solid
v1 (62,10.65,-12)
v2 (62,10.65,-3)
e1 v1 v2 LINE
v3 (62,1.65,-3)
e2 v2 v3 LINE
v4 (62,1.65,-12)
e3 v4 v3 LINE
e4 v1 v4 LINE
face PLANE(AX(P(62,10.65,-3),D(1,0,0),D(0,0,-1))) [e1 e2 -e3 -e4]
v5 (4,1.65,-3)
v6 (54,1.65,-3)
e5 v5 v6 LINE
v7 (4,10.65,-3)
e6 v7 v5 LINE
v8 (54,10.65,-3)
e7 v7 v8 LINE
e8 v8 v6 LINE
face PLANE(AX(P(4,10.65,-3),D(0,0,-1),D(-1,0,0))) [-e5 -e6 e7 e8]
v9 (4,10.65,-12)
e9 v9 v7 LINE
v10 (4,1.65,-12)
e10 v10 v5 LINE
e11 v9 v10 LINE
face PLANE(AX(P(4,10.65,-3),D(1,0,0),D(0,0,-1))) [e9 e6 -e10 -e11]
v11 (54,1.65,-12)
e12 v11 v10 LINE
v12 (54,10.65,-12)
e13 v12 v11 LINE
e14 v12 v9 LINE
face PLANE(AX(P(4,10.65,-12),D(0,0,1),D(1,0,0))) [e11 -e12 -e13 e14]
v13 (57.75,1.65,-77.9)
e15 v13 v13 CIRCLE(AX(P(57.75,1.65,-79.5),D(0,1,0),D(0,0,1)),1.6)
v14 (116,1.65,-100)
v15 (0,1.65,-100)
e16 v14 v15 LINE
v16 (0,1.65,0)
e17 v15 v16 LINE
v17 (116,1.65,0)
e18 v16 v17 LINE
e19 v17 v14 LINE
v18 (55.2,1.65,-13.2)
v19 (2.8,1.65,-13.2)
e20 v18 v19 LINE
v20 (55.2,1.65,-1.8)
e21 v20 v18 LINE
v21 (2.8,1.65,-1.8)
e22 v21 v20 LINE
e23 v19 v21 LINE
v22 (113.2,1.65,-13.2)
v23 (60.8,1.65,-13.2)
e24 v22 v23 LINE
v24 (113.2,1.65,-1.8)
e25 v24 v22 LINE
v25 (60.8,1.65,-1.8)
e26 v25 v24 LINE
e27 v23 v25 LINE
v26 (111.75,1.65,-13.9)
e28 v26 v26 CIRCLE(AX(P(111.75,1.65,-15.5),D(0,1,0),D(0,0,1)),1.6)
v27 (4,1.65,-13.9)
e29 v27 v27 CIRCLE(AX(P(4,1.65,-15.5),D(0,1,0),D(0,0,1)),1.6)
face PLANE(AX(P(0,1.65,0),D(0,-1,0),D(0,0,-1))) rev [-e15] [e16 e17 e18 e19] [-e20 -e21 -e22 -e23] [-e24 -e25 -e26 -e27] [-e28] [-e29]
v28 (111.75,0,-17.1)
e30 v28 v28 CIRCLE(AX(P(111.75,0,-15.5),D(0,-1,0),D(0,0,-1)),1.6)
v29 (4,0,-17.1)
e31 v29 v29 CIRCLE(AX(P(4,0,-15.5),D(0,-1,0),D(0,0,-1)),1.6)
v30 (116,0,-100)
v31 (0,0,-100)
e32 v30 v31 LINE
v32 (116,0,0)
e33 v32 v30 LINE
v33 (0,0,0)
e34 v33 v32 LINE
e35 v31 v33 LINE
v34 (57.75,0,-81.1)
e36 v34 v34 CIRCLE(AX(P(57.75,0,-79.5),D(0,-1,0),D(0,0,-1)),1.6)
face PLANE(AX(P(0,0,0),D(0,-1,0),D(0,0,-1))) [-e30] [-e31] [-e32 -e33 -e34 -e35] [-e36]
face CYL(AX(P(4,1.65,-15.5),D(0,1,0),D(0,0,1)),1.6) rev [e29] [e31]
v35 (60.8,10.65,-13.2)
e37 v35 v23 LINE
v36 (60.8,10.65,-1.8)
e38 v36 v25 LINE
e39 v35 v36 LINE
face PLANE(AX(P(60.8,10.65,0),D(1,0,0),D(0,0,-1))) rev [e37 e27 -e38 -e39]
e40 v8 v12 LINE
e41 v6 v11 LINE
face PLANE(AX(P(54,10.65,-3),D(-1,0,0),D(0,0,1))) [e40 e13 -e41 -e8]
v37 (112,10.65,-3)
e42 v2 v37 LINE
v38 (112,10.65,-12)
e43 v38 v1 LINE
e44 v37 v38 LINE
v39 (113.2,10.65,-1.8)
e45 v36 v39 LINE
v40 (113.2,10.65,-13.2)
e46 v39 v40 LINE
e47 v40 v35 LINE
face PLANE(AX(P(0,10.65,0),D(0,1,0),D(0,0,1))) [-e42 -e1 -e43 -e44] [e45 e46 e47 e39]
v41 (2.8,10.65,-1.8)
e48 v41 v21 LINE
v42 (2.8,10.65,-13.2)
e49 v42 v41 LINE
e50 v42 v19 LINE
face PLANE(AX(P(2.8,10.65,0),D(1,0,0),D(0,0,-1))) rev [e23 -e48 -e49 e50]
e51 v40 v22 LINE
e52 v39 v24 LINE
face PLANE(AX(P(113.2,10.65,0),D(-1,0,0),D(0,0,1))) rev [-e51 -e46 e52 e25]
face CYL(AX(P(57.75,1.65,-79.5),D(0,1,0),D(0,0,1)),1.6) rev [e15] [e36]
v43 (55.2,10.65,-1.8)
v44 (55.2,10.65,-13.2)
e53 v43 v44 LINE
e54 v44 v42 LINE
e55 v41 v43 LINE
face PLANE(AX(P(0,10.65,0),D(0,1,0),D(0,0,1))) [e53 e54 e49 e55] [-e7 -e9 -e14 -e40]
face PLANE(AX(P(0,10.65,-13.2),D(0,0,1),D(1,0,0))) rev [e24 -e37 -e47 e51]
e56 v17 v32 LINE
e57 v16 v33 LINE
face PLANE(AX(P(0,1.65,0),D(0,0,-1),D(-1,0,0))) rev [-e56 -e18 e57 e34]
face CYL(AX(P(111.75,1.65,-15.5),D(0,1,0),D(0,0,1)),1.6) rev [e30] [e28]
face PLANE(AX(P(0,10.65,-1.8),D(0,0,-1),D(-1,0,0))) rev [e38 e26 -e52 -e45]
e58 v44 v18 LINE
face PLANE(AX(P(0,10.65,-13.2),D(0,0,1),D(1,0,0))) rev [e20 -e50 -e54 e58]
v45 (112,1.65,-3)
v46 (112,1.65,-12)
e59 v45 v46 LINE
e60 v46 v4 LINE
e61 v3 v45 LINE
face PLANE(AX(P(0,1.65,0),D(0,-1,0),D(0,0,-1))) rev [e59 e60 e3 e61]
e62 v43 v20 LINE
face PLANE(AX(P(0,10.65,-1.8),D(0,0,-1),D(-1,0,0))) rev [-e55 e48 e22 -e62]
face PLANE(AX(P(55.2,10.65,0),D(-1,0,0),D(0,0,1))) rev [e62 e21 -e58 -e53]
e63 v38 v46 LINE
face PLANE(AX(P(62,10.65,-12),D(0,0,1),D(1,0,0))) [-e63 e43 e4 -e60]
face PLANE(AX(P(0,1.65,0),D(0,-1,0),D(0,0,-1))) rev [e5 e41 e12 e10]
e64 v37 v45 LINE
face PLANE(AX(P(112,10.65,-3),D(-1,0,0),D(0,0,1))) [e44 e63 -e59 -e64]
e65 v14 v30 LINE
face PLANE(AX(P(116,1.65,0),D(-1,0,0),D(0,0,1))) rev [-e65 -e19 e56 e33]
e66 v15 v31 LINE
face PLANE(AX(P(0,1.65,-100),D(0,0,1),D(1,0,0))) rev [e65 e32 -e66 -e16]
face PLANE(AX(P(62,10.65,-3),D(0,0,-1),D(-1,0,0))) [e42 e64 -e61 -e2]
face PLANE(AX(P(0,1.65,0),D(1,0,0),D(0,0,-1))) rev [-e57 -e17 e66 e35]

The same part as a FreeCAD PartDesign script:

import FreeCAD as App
import Part
import Sketcher
from FreeCAD import Vector
Q = App.Units.Quantity


def add_polygon(sketch, points):
    """Adds a closed chain of lines whose ends are joined by coincident constraints."""
    first, n = sketch.GeometryCount, len(points)
    for a, b in zip(points, points[1:] + points[:1]):
        sketch.addGeometry(Part.LineSegment(App.Vector(*a, 0), App.Vector(*b, 0)), False)
    for i in range(n):
        sketch.addConstraint(Sketcher.Constraint("Coincident", first + i, 2, first + (i + 1) % n, 1))

doc = App.newDocument("Part")
body = doc.addObject("PartDesign::Body", "Body")

# Sketch on XZ plane
sketch1 = doc.addObject("Sketcher::SketchObject", "Sketch")
body.addObject(sketch1)
sketch1.AttachmentSupport = (doc.XZ_Plane, [""])
sketch1.MapMode = "FlatFace"
add_polygon(sketch1, [(0, -100), (0, 0), (116, 0), (116, -100)])  # lines 0-3
sketch1.addConstraint([
    Sketcher.Constraint("Vertical", 0),
    Sketcher.Constraint("Horizontal", 1),
    Sketcher.Constraint("Vertical", 2),
    Sketcher.Constraint("Horizontal", 3),
    Sketcher.Constraint("Coincident", 0, 2, -1, 1),
    Sketcher.Constraint("DistanceX", 1, 1, 1, 2, Q("116 mm")),
    Sketcher.Constraint("DistanceY", 0, 1, 0, 2, Q("100 mm")),
])
pad1 = doc.addObject("PartDesign::Pad", "Pad")
body.addObject(pad1)
pad1.Profile = sketch1
pad1.Length = 1.65
pad1.Reversed = True

# Sketch on XZ plane
sketch2 = doc.addObject("Sketcher::SketchObject", "Sketch001")
body.addObject(sketch2)
sketch2.AttachmentSupport = (doc.XZ_Plane, [""])
sketch2.MapMode = "FlatFace"
sketch2.AttachmentOffset = App.Placement(Vector(0, 0, -1.65), App.Rotation())
sketch2.addGeometry([
    Part.Circle(Vector(4, -15.5, 0), Vector(0, 0, 1), 1.6),
    Part.Circle(Vector(111.8, -15.5, 0), Vector(0, 0, 1), 1.6),
    Part.Circle(Vector(57.8, -79.5, 0), Vector(0, 0, 1), 1.6),
], False)
sketch2.addConstraint([
    Sketcher.Constraint("Equal", 0, 1),
    Sketcher.Constraint("Equal", 1, 2),
    Sketcher.Constraint("Horizontal", 0, 3, 1, 3),
    Sketcher.Constraint("Diameter", 0, Q("3.2 mm")),
    Sketcher.Constraint("DistanceX", -1, 1, 0, 3, Q("4 mm")),
    Sketcher.Constraint("DistanceY", 2, 3, 0, 3, Q("64 mm")),
    Sketcher.Constraint("DistanceX", 2, 3, 1, 3, Q("54 mm")),
    Sketcher.Constraint("DistanceY", 0, 3, -1, 1, Q("15.5 mm")),
    Sketcher.Constraint("DistanceX", -1, 1, 1, 3, Q("111.75 mm")),
])
doc.recompute()
hole = doc.addObject("PartDesign::Hole", "Hole")
body.addObject(hole)
hole.Profile = sketch2
hole.ThreadType = "None"
hole.Diameter = 3.2
hole.DepthType = "Dimension"
hole.Depth = 20
hole.DrillPoint = "Angled"
hole.DrillPointAngle = 118
hole.Reversed = True

# Sketch on XZ plane
sketch3 = doc.addObject("Sketcher::SketchObject", "Sketch002")
body.addObject(sketch3)
sketch3.AttachmentSupport = (doc.XZ_Plane, [""])
sketch3.MapMode = "FlatFace"
sketch3.AttachmentOffset = App.Placement(Vector(0, 0, -1.65), App.Rotation())
add_polygon(sketch3, [(3, -13), (3, -2), (55, -2), (55, -13)])  # lines 0-3
add_polygon(sketch3, [(54, -3), (4, -3), (4, -12), (54, -12)])  # lines 4-7
add_polygon(sketch3, [(61, -13), (61, -2), (113, -2), (113, -13)])  # lines 8-11
add_polygon(sketch3, [(112, -3), (62, -3), (62, -12), (112, -12)])  # lines 12-15
sketch3.addConstraint([
    Sketcher.Constraint("Vertical", 0),
    Sketcher.Constraint("Horizontal", 1),
    Sketcher.Constraint("Vertical", 2),
    Sketcher.Constraint("Horizontal", 3),
    Sketcher.Constraint("Horizontal", 4),
    Sketcher.Constraint("Vertical", 5),
    Sketcher.Constraint("Horizontal", 6),
    Sketcher.Constraint("Vertical", 7),
    Sketcher.Constraint("Vertical", 8),
    Sketcher.Constraint("Horizontal", 9),
    Sketcher.Constraint("Vertical", 10),
    Sketcher.Constraint("Horizontal", 11),
    Sketcher.Constraint("Horizontal", 12),
    Sketcher.Constraint("Vertical", 13),
    Sketcher.Constraint("Horizontal", 14),
    Sketcher.Constraint("Vertical", 15),
    Sketcher.Constraint("Horizontal", 1, 2, 8, 2),
    Sketcher.Constraint("Horizontal", 3, 2, 10, 2),
    Sketcher.Constraint("Horizontal", 7, 2, 12, 2),
    Sketcher.Constraint("Horizontal", 6, 2, 13, 2),
    Sketcher.Constraint("Equal", 3, 9),
    Sketcher.Constraint("Equal", 6, 12),
    Sketcher.Constraint("DistanceX", 4, 2, 4, 1, Q("50 mm")),
    Sketcher.Constraint("DistanceY", 5, 2, 5, 1, Q("9 mm")),
    Sketcher.Constraint("DistanceX", 1, 1, 1, 2, Q("52.4 mm")),
    Sketcher.Constraint("DistanceY", 0, 1, 0, 2, Q("11.4 mm")),
    Sketcher.Constraint("DistanceX", -1, 1, 4, 2, Q("4 mm")),
    Sketcher.Constraint("DistanceY", 4, 2, -1, 1, Q("3 mm")),
    Sketcher.Constraint("DistanceX", -1, 1, 12, 2, Q("62 mm")),
    Sketcher.Constraint("DistanceX", 1, 2, 9, 2, Q("58 mm")),
    Sketcher.Constraint("DistanceX", -1, 1, 0, 2, Q("2.8 mm")),
    Sketcher.Constraint("DistanceY", 0, 2, -1, 1, Q("1.8 mm")),
])
pad2 = doc.addObject("PartDesign::Pad", "Pad001")
body.addObject(pad2)
pad2.Profile = sketch3
pad2.Length = 9
pad2.Reversed = True

doc.recompute()
